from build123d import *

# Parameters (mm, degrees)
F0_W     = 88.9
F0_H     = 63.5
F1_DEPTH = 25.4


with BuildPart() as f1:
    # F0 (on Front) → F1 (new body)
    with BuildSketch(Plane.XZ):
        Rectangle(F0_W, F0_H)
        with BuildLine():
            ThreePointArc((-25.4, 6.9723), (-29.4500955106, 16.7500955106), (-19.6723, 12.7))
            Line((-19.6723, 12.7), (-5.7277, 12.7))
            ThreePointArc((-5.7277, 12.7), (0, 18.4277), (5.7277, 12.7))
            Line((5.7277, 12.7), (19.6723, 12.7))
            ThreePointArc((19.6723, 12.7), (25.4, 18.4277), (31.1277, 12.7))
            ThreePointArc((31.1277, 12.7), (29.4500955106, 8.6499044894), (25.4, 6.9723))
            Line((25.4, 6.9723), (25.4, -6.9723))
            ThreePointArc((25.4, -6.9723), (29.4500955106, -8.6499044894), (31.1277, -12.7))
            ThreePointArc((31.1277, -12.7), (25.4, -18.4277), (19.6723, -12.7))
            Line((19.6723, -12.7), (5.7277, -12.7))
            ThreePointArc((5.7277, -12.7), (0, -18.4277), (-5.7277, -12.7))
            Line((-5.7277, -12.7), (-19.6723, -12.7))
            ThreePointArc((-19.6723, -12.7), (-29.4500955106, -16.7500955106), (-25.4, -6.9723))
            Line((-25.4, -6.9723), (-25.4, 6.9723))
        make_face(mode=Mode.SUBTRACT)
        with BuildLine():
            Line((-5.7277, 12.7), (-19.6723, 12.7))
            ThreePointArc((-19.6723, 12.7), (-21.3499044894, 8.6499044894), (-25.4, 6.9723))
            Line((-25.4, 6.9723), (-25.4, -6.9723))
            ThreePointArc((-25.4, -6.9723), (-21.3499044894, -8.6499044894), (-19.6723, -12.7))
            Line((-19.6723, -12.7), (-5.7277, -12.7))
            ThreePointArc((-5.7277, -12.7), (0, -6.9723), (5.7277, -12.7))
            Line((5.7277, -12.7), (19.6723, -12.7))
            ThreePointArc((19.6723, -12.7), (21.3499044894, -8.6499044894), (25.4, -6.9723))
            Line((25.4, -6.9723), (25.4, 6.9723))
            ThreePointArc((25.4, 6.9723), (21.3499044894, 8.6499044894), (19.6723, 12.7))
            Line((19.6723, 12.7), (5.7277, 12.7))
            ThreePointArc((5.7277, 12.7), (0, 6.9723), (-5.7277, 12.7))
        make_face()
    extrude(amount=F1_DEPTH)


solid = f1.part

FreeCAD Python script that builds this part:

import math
import FreeCAD as App
import Part
import Sketcher
from FreeCAD import Vector
Q = App.Units.Quantity

doc = App.newDocument("Part")
body = doc.addObject("PartDesign::Body", "Body")

# Sketch on XZ plane
sketch1 = body.newObject("Sketcher::SketchObject", "Sketch")
sketch1.AttachmentSupport = (doc.getObject("XZ_Plane"), [""])
sketch1.MapMode = "FlatFace"
sketch1.addGeometry(Part.LineSegment(Vector(-44, 32, 0), Vector(-44, -32, 0)), False)
sketch1.addGeometry(Part.LineSegment(Vector(-44, -32, 0), Vector(44, -32, 0)), False)
sketch1.addGeometry(Part.LineSegment(Vector(44, -32, 0), Vector(44, 32, 0)), False)
sketch1.addGeometry(Part.LineSegment(Vector(44, 32, 0), Vector(-44, 32, 0)), False)
sketch1.addGeometry(Part.ArcOfCircle(Part.Circle(Vector(-25, -13, 0), Vector(0, 0, 1), 6), math.radians(90), math.radians(360)), False)
sketch1.addGeometry(Part.ArcOfCircle(Part.Circle(Vector(-25, -13, 0), Vector(0, 0, 1), 6), math.radians(0), math.radians(90)), False)
sketch1.addGeometry(Part.Circle(Vector(0, -13, 0), Vector(0, 0, 1), 6), False)
sketch1.addGeometry(Part.ArcOfCircle(Part.Circle(Vector(25, -13, 0), Vector(0, 0, 1), 6), math.radians(180), math.radians(360)), False)
sketch1.addGeometry(Part.ArcOfCircle(Part.Circle(Vector(25, -13, 0), Vector(0, 0, 1), 6), math.radians(90), math.radians(180)), False)
sketch1.addGeometry(Part.ArcOfCircle(Part.Circle(Vector(25, -13, 0), Vector(0, 0, 1), 6), math.radians(0), math.radians(90)), False)
sketch1.addGeometry(Part.ArcOfCircle(Part.Circle(Vector(25, 13, 0), Vector(0, 0, 1), 6), math.radians(-90), math.radians(0)), False)
sketch1.addGeometry(Part.ArcOfCircle(Part.Circle(Vector(25, 13, 0), Vector(0, 0, 1), 6), math.radians(180), math.radians(270)), False)
sketch1.addGeometry(Part.ArcOfCircle(Part.Circle(Vector(25, 13, 0), Vector(0, 0, 1), 6), math.radians(0), math.radians(180)), False)
sketch1.addGeometry(Part.Circle(Vector(0, 13, 0), Vector(0, 0, 1), 6), False)
sketch1.addGeometry(Part.ArcOfCircle(Part.Circle(Vector(-25, 13, 0), Vector(0, 0, 1), 6), math.radians(0), math.radians(270)), False)
sketch1.addGeometry(Part.ArcOfCircle(Part.Circle(Vector(-25, 13, 0), Vector(0, 0, 1), 6), math.radians(-90), math.radians(0)), False)
sketch1.addConstraint(Sketcher.Constraint("Coincident", 0, 2, 1, 1))
sketch1.addConstraint(Sketcher.Constraint("Coincident", 1, 2, 2, 1))
sketch1.addConstraint(Sketcher.Constraint("Coincident", 2, 2, 3, 1))
sketch1.addConstraint(Sketcher.Constraint("Coincident", 3, 2, 0, 1))
sketch1.addConstraint(Sketcher.Constraint("Tangent", 4, 1, 5, 2))
sketch1.addConstraint(Sketcher.Constraint("Coincident", 5, 1, 4, 2))
sketch1.addConstraint(Sketcher.Constraint("Tangent", 7, 1, 8, 2))
sketch1.addConstraint(Sketcher.Constraint("Tangent", 8, 1, 9, 2))
sketch1.addConstraint(Sketcher.Constraint("Tangent", 9, 1, 7, 2))
sketch1.addConstraint(Sketcher.Constraint("Tangent", 10, 1, 11, 2))
sketch1.addConstraint(Sketcher.Constraint("Tangent", 11, 1, 12, 2))
sketch1.addConstraint(Sketcher.Constraint("Tangent", 12, 1, 10, 2))
sketch1.addConstraint(Sketcher.Constraint("Tangent", 14, 1, 15, 2))
sketch1.addConstraint(Sketcher.Constraint("Coincident", 15, 1, 14, 2))
sketch1.addConstraint(Sketcher.Constraint("Vertical", 0))
sketch1.addConstraint(Sketcher.Constraint("Horizontal", 1))
sketch1.addConstraint(Sketcher.Constraint("Vertical", 2))
sketch1.addConstraint(Sketcher.Constraint("Horizontal", 3))
sketch1.addConstraint(Sketcher.Constraint("Equal", 5, 6))
sketch1.addConstraint(Sketcher.Constraint("Equal", 6, 7))
sketch1.addConstraint(Sketcher.Constraint("Equal", 9, 10))
sketch1.addConstraint(Sketcher.Constraint("Equal", 12, 13))
sketch1.addConstraint(Sketcher.Constraint("Equal", 13, 14))
sketch1.addConstraint(Sketcher.Constraint("Symmetric", 4, 3, 10, 3, -1, 1))
sketch1.addConstraint(Sketcher.Constraint("Symmetric", 6, 3, 13, 3, -1, 1))
sketch1.addConstraint(Sketcher.Constraint("Symmetric", 7, 3, 14, 3, -1, 1))
sketch1.addConstraint(Sketcher.Constraint("Symmetric", 0, 2, 2, 2, -1, 1))
sketch1.addConstraint(Sketcher.Constraint("Symmetric", 4, 3, 7, 3, -2))
sketch1.addConstraint(Sketcher.Constraint("PointOnObject", 6, 3, -2))
sketch1.addConstraint(Sketcher.Constraint("Horizontal", 5, 3, 6, 3))
sketch1.addConstraint(Sketcher.Constraint("Horizontal", 9, 3, 5, 1))
sketch1.addConstraint(Sketcher.Constraint("Horizontal", 5, 1, 7, 1))
sketch1.addConstraint(Sketcher.Constraint("Horizontal", 7, 1, 9, 1))
sketch1.addConstraint(Sketcher.Constraint("Horizontal", 15, 3, 11, 1))
sketch1.addConstraint(Sketcher.Constraint("Horizontal", 11, 1, 12, 1))
sketch1.addConstraint(Sketcher.Constraint("Horizontal", 12, 1, 14, 1))
sketch1.addConstraint(Sketcher.Constraint("Vertical", 15, 3, 4, 1))
sketch1.addConstraint(Sketcher.Constraint("Vertical", 12, 3, 8, 1))
sketch1.addConstraint(Sketcher.Constraint("Vertical", 8, 1, 10, 1))
sketch1.addConstraint(Sketcher.Constraint("Vertical", 4, 1, 15, 1))
sketch1.addConstraint(Sketcher.Constraint("Diameter", 6, Q("0.451 in")))
sketch1.addConstraint(Sketcher.Constraint("DistanceX", 1, 1, 1, 2, Q("3.5 in")))
sketch1.addConstraint(Sketcher.Constraint("DistanceY", 0, 2, 0, 1, Q("2.5 in")))
sketch1.addConstraint(Sketcher.Constraint("DistanceX", 4, 3, -1, 1, Q("1 in")))
sketch1.addConstraint(Sketcher.Constraint("DistanceY", 7, 3, 10, 3, Q("1 in")))
pad1 = body.newObject("PartDesign::Pad", "Pad")
pad1.Profile = sketch1
pad1.Length = Q("1 in")

doc.recompute()
